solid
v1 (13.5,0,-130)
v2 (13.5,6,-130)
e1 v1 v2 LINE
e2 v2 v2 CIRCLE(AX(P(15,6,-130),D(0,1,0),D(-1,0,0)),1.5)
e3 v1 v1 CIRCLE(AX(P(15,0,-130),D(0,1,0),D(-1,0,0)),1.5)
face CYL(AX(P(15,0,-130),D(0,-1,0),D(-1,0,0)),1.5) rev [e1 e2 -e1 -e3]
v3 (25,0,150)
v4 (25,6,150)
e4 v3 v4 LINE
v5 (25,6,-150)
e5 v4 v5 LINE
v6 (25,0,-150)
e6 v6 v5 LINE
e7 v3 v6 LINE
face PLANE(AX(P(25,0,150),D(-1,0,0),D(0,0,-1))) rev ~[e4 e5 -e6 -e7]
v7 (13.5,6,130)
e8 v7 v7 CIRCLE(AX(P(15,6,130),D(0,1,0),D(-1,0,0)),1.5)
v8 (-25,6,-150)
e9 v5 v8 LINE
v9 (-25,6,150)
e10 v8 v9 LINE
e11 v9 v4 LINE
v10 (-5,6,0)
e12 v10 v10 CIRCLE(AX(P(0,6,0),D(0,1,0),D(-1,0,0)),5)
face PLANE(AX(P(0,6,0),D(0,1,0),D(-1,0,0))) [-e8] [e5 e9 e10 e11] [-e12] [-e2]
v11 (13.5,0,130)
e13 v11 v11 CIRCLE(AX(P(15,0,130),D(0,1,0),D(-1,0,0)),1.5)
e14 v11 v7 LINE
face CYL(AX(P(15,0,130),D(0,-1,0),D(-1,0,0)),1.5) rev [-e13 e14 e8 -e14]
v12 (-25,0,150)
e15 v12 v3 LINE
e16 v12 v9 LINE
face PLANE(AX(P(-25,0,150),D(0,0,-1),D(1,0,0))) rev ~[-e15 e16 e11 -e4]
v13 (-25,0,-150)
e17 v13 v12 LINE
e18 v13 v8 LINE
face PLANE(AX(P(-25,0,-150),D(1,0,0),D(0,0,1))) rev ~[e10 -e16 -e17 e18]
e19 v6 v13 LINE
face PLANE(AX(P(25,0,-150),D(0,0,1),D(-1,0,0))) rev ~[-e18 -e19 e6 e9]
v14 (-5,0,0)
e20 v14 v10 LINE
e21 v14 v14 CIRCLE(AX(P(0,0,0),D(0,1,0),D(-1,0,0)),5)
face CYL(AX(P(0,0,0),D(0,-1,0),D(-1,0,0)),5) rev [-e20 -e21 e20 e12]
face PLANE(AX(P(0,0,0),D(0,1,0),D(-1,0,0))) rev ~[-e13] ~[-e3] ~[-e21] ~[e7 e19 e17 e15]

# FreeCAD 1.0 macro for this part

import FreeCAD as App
import Part
import Sketcher

V = App.Vector
Q = App.Units.Quantity


def add_polygon(sketch, points):
    """Adds a closed chain of lines whose ends are joined by coincident constraints."""
    first, n = sketch.GeometryCount, len(points)
    for a, b in zip(points, points[1:] + points[:1]):
        sketch.addGeometry(Part.LineSegment(App.Vector(*a, 0), App.Vector(*b, 0)), False)
    for i in range(n):
        sketch.addConstraint(Sketcher.Constraint("Coincident", first + i, 2, first + (i + 1) % n, 1))

doc = App.newDocument("Part")
params = doc.addObject("Spreadsheet::Sheet", "Params")
for row, (alias, value) in enumerate([
    ("sketch1_diameter", "3 mm"),
    ("sketch1_diameter2", "10 mm"),
    ("sketch1_width", "50 mm"),
    ("sketch1_height", "300 mm"),
    ("pad1_length", "6 mm"),
], start=1):
    params.set(f"A{row}", alias)
    params.set(f"B{row}", "=" + value)
    params.setAlias(f"B{row}", alias)

body = doc.addObject("PartDesign::Body", "Body")

# Sketch on XZ plane
sketch1 = body.newObject("Sketcher::SketchObject", "Sketch")
sketch1.AttachmentSupport = (doc.getObject("XZ_Plane"), [""])
sketch1.MapMode = "FlatFace"
add_polygon(sketch1, [(-25, -150), (-25, 150), (25, 150), (25, -150)])  # lines 0-3
sketch1.addGeometry(Part.Circle(V(15, -130, 0), V(0, 0, 1), 1.5), False)  # 4
sketch1.addGeometry(Part.Circle(V(15, 130, 0), V(0, 0, 1), 1.5), False)  # 5
sketch1.addGeometry(Part.Circle(V(0, 0, 0), V(0, 0, 1), 5), False)  # 6
sketch1.addConstraint(Sketcher.Constraint("Vertical", 0))
sketch1.addConstraint(Sketcher.Constraint("Horizontal", 1))
sketch1.addConstraint(Sketcher.Constraint("Vertical", 2))
sketch1.addConstraint(Sketcher.Constraint("Horizontal", 3))
sketch1.addConstraint(Sketcher.Constraint("Coincident", 6, 3, -1, 1))
sketch1.addConstraint(Sketcher.Constraint("Equal", 4, 5))
sketch1.addConstraint(Sketcher.Constraint("Symmetric", 0, 2, 2, 2, -1, 1))
sketch1.addConstraint(Sketcher.Constraint("Symmetric", 4, 3, 5, 3, -1))
sketch1.addConstraint(Sketcher.Constraint("Diameter", 4, Q("3 mm")))
sketch1.addConstraint(Sketcher.Constraint("Diameter", 6, Q("10 mm")))
sketch1.addConstraint(Sketcher.Constraint("DistanceX", 1, 1, 1, 2, Q("50 mm")))
sketch1.addConstraint(Sketcher.Constraint("DistanceY", 0, 1, 0, 2, Q("300 mm")))
sketch1.addConstraint(Sketcher.Constraint("DistanceY", 5, 3, 0, 2, Q("20 mm")))
sketch1.addConstraint(Sketcher.Constraint("DistanceX", 5, 3, 1, 2, Q("10 mm")))
sketch1.setExpression("Constraints[12]", "Params.sketch1_diameter")
sketch1.setExpression("Constraints[13]", "Params.sketch1_diameter2")
sketch1.setExpression("Constraints[14]", "Params.sketch1_width")
sketch1.setExpression("Constraints[15]", "Params.sketch1_height")
pad1 = body.newObject("PartDesign::Pad", "Pad")
pad1.Profile = sketch1
pad1.setExpression("Length", "Params.pad1_length")
pad1.Reversed = True

doc.recompute()
